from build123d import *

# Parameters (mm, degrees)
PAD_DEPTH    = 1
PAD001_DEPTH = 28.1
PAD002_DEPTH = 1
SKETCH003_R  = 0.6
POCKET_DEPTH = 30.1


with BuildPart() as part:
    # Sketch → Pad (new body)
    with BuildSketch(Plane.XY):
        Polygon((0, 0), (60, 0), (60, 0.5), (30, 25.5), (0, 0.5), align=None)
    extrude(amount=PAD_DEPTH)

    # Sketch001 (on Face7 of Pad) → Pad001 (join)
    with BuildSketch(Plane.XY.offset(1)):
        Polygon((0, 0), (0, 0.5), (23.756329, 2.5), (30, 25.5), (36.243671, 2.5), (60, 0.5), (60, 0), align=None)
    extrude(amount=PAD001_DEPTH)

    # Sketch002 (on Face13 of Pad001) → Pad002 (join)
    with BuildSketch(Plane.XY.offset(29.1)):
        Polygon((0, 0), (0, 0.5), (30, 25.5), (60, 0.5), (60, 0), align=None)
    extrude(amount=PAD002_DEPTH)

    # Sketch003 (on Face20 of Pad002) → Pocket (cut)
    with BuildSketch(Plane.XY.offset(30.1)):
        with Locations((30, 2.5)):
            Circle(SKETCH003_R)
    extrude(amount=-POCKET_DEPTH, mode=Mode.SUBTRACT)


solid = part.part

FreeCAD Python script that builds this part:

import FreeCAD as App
import Part
import Sketcher

doc = App.newDocument("Part")
body = doc.addObject("PartDesign::Body", "Body")

# Sketch on XY plane
sketch1 = body.newObject("Sketcher::SketchObject", "Sketch")
sketch1.AttachmentSupport = (doc.getObject("XY_Plane"), [""])
sketch1.MapMode = "FlatFace"
sketch1.addGeometry([
    Part.LineSegment(App.Vector(0, 0, 0), App.Vector(60, 0, 0)),  # 0
    Part.LineSegment(App.Vector(60, 0, 0), App.Vector(60, 0.5, 0)),  # 1
    Part.LineSegment(App.Vector(60, 0.5, 0), App.Vector(30, 25.5, 0)),  # 2
    Part.LineSegment(App.Vector(30, 25.5, 0), App.Vector(0, 0.5, 0)),  # 3
    Part.LineSegment(App.Vector(0, 0.5, 0), App.Vector(0, 0, 0)),  # 4
], False)
sketch1.addConstraint([
    Sketcher.Constraint("Coincident", 0, 2, 1, 1),
    Sketcher.Constraint("Coincident", 1, 2, 2, 1),
    Sketcher.Constraint("Coincident", 2, 2, 3, 1),
    Sketcher.Constraint("Coincident", 3, 2, 4, 1),
    Sketcher.Constraint("Coincident", 4, 2, 0, 1),
    Sketcher.Constraint("Horizontal", 0),
    Sketcher.Constraint("Vertical", 1),
    Sketcher.Constraint("Vertical", 4),
    Sketcher.Constraint("Coincident", 4, 2, -1, 1),
    Sketcher.Constraint("Horizontal", 1, 2, 3, 2),
    Sketcher.Constraint("Equal", 2, 3),
    Sketcher.Constraint("DistanceX", 0, 1, 0, 2, 60.0),
    Sketcher.Constraint("DistanceY", 1, 1, 1, 2, 0.5),
    Sketcher.Constraint("DistanceY", 1, 2, 2, 2, 25.0),
])
pad1 = body.newObject("PartDesign::Pad", "Pad")
pad1.Profile = sketch1
pad1.Length = 1

# Sketch on XY plane
sketch2 = body.newObject("Sketcher::SketchObject", "Sketch001")
sketch2.AttachmentSupport = (doc.getObject("XY_Plane"), [""])
sketch2.MapMode = "FlatFace"
sketch2.AttachmentOffset = App.Placement(App.Vector(0, 0, 1), App.Rotation())
sketch2.addGeometry([
    Part.LineSegment(App.Vector(0, 0.5, 0), App.Vector(0, 0, 0)),  # 0
    Part.LineSegment(App.Vector(0, 0, 0), App.Vector(60, 0, 0)),  # 1
    Part.LineSegment(App.Vector(60, 0, 0), App.Vector(60, 0.5, 0)),  # 2
    Part.LineSegment(App.Vector(60, 0.5, 0), App.Vector(36.243671, 2.5, 0)),  # 3
    Part.LineSegment(App.Vector(36.243671, 2.5, 0), App.Vector(30, 25.5, 0)),  # 4
    Part.LineSegment(App.Vector(30, 25.5, 0), App.Vector(23.756329, 2.5, 0)),  # 5
    Part.LineSegment(App.Vector(23.756329, 2.5, 0), App.Vector(0, 0.5, 0)),  # 6
], False)
sketch2.addConstraint([
    Sketcher.Constraint("Coincident", 0, 2, 1, 1),
    Sketcher.Constraint("Coincident", 1, 2, 2, 1),
    Sketcher.Constraint("Coincident", 2, 2, 3, 1),
    Sketcher.Constraint("Coincident", 3, 2, 4, 1),
    Sketcher.Constraint("Coincident", 4, 2, 5, 1),
    Sketcher.Constraint("Coincident", 5, 2, 6, 1),
    Sketcher.Constraint("Coincident", 6, 2, 0, 1),
    Sketcher.Constraint("Vertical", 0),
    Sketcher.Constraint("Horizontal", 1),
    Sketcher.Constraint("Vertical", 2),
    Sketcher.Constraint("Coincident", 0, 2, -1, 1),
    Sketcher.Constraint("Horizontal", 3, 2, 5, 2),
    Sketcher.Constraint("Horizontal", 2, 2, 6, 2),
    Sketcher.Constraint("Equal", 4, 5),
    Sketcher.Constraint("Equal", 3, 6),
    Sketcher.Constraint("DistanceX", 1, 1, 1, 2, 60.0),
    Sketcher.Constraint("DistanceY", 0, 2, 0, 1, 0.5),
    Sketcher.Constraint("DistanceY", 2, 2, 3, 2, 2.0),
    Sketcher.Constraint("DistanceY", 3, 2, 4, 2, 23.0),
    Sketcher.Constraint("Distance", 3, 23.840368),
])
pad2 = body.newObject("PartDesign::Pad", "Pad001")
pad2.Profile = sketch2
pad2.Length = 28.1

# Sketch on XY plane
sketch3 = body.newObject("Sketcher::SketchObject", "Sketch002")
sketch3.AttachmentSupport = (doc.getObject("XY_Plane"), [""])
sketch3.MapMode = "FlatFace"
sketch3.AttachmentOffset = App.Placement(App.Vector(0, 0, 29.1), App.Rotation())
sketch3.addGeometry([
    Part.LineSegment(App.Vector(0, 0.5, 0), App.Vector(0, 0, 0)),  # 0
    Part.LineSegment(App.Vector(0, 0, 0), App.Vector(60, 0, 0)),  # 1
    Part.LineSegment(App.Vector(60, 0, 0), App.Vector(60, 0.5, 0)),  # 2
    Part.LineSegment(App.Vector(60, 0.5, 0), App.Vector(30, 25.5, 0)),  # 3
    Part.LineSegment(App.Vector(30, 25.5, 0), App.Vector(0, 0.5, 0)),  # 4
], False)
sketch3.addConstraint([
    Sketcher.Constraint("Coincident", 0, 2, 1, 1),
    Sketcher.Constraint("Coincident", 1, 2, 2, 1),
    Sketcher.Constraint("Coincident", 2, 2, 3, 1),
    Sketcher.Constraint("Coincident", 3, 2, 4, 1),
    Sketcher.Constraint("Coincident", 4, 2, 0, 1),
    Sketcher.Constraint("Vertical", 0),
    Sketcher.Constraint("Horizontal", 1),
    Sketcher.Constraint("Vertical", 2),
    Sketcher.Constraint("Coincident", 0, 2, -1, 1),
    Sketcher.Constraint("Horizontal", 2, 2, 4, 2),
    Sketcher.Constraint("Equal", 3, 4),
    Sketcher.Constraint("DistanceX", 1, 1, 1, 2, 60.0),
    Sketcher.Constraint("DistanceY", 0, 2, 0, 1, 0.5),
    Sketcher.Constraint("DistanceY", 2, 2, 3, 2, 25.0),
])
pad3 = body.newObject("PartDesign::Pad", "Pad002")
pad3.Profile = sketch3
pad3.Length = 1

# Sketch on XY plane
sketch4 = body.newObject("Sketcher::SketchObject", "Sketch003")
sketch4.AttachmentSupport = (doc.getObject("XY_Plane"), [""])
sketch4.MapMode = "FlatFace"
sketch4.AttachmentOffset = App.Placement(App.Vector(0, 0, 30.1), App.Rotation())
sketch4.addGeometry(Part.Circle(App.Vector(30, 2.5, 0), App.Vector(0, 0, 1), 0.6), False)
sketch4.addConstraint([
    Sketcher.Constraint("Diameter", 0, 1.2),
    Sketcher.Constraint("DistanceX", -1, 1, 0, 3, 30.0),
    Sketcher.Constraint("DistanceY", -1, 1, 0, 3, 2.5),
])
pocket1 = body.newObject("PartDesign::Pocket", "Pocket")
pocket1.Profile = sketch4
pocket1.Length = 30.1

doc.recompute()
